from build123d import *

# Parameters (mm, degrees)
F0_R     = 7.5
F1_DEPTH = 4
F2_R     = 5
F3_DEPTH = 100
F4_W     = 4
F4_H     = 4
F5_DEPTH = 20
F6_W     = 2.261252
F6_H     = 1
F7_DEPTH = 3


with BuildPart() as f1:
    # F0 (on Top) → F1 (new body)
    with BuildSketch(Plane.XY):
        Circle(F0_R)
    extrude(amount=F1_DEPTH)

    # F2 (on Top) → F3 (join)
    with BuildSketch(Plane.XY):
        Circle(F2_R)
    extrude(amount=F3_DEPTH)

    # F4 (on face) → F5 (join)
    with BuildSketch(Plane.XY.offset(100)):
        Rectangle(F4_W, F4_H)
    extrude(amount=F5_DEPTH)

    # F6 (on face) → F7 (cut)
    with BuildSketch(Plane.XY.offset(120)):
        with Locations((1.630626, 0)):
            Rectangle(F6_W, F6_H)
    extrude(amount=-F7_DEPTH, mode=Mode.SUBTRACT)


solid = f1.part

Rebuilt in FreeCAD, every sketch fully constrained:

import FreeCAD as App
import Part
import Sketcher
Q = App.Units.Quantity


def add_polygon(sketch, points):
    """Adds a closed chain of lines whose ends are joined by coincident constraints."""
    first, n = sketch.GeometryCount, len(points)
    for a, b in zip(points, points[1:] + points[:1]):
        sketch.addGeometry(Part.LineSegment(App.Vector(*a, 0), App.Vector(*b, 0)), False)
    for i in range(n):
        sketch.addConstraint(Sketcher.Constraint("Coincident", first + i, 2, first + (i + 1) % n, 1))

doc = App.newDocument("Part")
body = doc.addObject("PartDesign::Body", "Body")

sketch1 = body.newObject("Sketcher::SketchObject", "Sketch")
sketch1.AttachmentSupport = (doc.getObject("XY_Plane"), [""])
sketch1.MapMode = "FlatFace"
sketch1.addGeometry(Part.Circle(App.Vector(0, 0, 0), App.Vector(0, 0, 1), 7.5), False)
sketch1.addConstraint([
    Sketcher.Constraint("Coincident", 0, 3, -1, 1),
    Sketcher.Constraint("Diameter", 0, Q("15 mm")),
])
pad1 = body.newObject("PartDesign::Pad", "Pad")
pad1.Profile = sketch1
pad1.Length = 4

sketch2 = body.newObject("Sketcher::SketchObject", "Sketch001")
sketch2.AttachmentSupport = (doc.getObject("XY_Plane"), [""])
sketch2.MapMode = "FlatFace"
sketch2.addGeometry(Part.Circle(App.Vector(0, 0, 0), App.Vector(0, 0, 1), 5), False)
sketch2.addConstraint([
    Sketcher.Constraint("Coincident", 0, 3, -1, 1),
    Sketcher.Constraint("Diameter", 0, Q("10 mm")),
])
pad2 = body.newObject("PartDesign::Pad", "Pad001")
pad2.Profile = sketch2
pad2.Length = 100

sketch3 = body.newObject("Sketcher::SketchObject", "Sketch002")
sketch3.AttachmentSupport = (doc.getObject("XY_Plane"), [""])
sketch3.MapMode = "FlatFace"
sketch3.AttachmentOffset = App.Placement(App.Vector(0, 0, 100), App.Rotation())
add_polygon(sketch3, [(-2, 2), (-2, -2), (2, -2), (2, 2)])
sketch3.addConstraint([
    Sketcher.Constraint("Vertical", 0),
    Sketcher.Constraint("Horizontal", 1),
    Sketcher.Constraint("Vertical", 2),
    Sketcher.Constraint("Horizontal", 3),
    Sketcher.Constraint("Symmetric", 0, 2, 2, 2, -1, 1),
    Sketcher.Constraint("Equal", 3, 0),
    Sketcher.Constraint("DistanceX", 1, 1, 1, 2, Q("4 mm")),
])
pad3 = body.newObject("PartDesign::Pad", "Pad002")
pad3.Profile = sketch3
pad3.Length = 20

sketch4 = body.newObject("Sketcher::SketchObject", "Sketch003")
sketch4.AttachmentSupport = (doc.getObject("XY_Plane"), [""])
sketch4.MapMode = "FlatFace"
sketch4.AttachmentOffset = App.Placement(App.Vector(0, 0, 120), App.Rotation())
add_polygon(sketch4, [(0.5, 0.5), (0.5, -0.5), (2.761252, -0.5), (2.761252, 0.5)])
sketch4.addConstraint([
    Sketcher.Constraint("Vertical", 0),
    Sketcher.Constraint("Horizontal", 1),
    Sketcher.Constraint("Vertical", 2),
    Sketcher.Constraint("Horizontal", 3),
    Sketcher.Constraint("DistanceY", 0, 2, 0, 1, Q("1 mm")),
    Sketcher.Constraint("DistanceX", -1, 1, 0, 2, Q("0.5 mm")),
    Sketcher.Constraint("DistanceY", 0, 2, -1, 1, Q("0.5 mm")),
    Sketcher.Constraint("DistanceX", 1, 1, 1, 2, Q("2.261252 mm")),
])
pocket1 = body.newObject("PartDesign::Pocket", "Pocket")
pocket1.Profile = sketch4
pocket1.Length = 3

doc.recompute()
